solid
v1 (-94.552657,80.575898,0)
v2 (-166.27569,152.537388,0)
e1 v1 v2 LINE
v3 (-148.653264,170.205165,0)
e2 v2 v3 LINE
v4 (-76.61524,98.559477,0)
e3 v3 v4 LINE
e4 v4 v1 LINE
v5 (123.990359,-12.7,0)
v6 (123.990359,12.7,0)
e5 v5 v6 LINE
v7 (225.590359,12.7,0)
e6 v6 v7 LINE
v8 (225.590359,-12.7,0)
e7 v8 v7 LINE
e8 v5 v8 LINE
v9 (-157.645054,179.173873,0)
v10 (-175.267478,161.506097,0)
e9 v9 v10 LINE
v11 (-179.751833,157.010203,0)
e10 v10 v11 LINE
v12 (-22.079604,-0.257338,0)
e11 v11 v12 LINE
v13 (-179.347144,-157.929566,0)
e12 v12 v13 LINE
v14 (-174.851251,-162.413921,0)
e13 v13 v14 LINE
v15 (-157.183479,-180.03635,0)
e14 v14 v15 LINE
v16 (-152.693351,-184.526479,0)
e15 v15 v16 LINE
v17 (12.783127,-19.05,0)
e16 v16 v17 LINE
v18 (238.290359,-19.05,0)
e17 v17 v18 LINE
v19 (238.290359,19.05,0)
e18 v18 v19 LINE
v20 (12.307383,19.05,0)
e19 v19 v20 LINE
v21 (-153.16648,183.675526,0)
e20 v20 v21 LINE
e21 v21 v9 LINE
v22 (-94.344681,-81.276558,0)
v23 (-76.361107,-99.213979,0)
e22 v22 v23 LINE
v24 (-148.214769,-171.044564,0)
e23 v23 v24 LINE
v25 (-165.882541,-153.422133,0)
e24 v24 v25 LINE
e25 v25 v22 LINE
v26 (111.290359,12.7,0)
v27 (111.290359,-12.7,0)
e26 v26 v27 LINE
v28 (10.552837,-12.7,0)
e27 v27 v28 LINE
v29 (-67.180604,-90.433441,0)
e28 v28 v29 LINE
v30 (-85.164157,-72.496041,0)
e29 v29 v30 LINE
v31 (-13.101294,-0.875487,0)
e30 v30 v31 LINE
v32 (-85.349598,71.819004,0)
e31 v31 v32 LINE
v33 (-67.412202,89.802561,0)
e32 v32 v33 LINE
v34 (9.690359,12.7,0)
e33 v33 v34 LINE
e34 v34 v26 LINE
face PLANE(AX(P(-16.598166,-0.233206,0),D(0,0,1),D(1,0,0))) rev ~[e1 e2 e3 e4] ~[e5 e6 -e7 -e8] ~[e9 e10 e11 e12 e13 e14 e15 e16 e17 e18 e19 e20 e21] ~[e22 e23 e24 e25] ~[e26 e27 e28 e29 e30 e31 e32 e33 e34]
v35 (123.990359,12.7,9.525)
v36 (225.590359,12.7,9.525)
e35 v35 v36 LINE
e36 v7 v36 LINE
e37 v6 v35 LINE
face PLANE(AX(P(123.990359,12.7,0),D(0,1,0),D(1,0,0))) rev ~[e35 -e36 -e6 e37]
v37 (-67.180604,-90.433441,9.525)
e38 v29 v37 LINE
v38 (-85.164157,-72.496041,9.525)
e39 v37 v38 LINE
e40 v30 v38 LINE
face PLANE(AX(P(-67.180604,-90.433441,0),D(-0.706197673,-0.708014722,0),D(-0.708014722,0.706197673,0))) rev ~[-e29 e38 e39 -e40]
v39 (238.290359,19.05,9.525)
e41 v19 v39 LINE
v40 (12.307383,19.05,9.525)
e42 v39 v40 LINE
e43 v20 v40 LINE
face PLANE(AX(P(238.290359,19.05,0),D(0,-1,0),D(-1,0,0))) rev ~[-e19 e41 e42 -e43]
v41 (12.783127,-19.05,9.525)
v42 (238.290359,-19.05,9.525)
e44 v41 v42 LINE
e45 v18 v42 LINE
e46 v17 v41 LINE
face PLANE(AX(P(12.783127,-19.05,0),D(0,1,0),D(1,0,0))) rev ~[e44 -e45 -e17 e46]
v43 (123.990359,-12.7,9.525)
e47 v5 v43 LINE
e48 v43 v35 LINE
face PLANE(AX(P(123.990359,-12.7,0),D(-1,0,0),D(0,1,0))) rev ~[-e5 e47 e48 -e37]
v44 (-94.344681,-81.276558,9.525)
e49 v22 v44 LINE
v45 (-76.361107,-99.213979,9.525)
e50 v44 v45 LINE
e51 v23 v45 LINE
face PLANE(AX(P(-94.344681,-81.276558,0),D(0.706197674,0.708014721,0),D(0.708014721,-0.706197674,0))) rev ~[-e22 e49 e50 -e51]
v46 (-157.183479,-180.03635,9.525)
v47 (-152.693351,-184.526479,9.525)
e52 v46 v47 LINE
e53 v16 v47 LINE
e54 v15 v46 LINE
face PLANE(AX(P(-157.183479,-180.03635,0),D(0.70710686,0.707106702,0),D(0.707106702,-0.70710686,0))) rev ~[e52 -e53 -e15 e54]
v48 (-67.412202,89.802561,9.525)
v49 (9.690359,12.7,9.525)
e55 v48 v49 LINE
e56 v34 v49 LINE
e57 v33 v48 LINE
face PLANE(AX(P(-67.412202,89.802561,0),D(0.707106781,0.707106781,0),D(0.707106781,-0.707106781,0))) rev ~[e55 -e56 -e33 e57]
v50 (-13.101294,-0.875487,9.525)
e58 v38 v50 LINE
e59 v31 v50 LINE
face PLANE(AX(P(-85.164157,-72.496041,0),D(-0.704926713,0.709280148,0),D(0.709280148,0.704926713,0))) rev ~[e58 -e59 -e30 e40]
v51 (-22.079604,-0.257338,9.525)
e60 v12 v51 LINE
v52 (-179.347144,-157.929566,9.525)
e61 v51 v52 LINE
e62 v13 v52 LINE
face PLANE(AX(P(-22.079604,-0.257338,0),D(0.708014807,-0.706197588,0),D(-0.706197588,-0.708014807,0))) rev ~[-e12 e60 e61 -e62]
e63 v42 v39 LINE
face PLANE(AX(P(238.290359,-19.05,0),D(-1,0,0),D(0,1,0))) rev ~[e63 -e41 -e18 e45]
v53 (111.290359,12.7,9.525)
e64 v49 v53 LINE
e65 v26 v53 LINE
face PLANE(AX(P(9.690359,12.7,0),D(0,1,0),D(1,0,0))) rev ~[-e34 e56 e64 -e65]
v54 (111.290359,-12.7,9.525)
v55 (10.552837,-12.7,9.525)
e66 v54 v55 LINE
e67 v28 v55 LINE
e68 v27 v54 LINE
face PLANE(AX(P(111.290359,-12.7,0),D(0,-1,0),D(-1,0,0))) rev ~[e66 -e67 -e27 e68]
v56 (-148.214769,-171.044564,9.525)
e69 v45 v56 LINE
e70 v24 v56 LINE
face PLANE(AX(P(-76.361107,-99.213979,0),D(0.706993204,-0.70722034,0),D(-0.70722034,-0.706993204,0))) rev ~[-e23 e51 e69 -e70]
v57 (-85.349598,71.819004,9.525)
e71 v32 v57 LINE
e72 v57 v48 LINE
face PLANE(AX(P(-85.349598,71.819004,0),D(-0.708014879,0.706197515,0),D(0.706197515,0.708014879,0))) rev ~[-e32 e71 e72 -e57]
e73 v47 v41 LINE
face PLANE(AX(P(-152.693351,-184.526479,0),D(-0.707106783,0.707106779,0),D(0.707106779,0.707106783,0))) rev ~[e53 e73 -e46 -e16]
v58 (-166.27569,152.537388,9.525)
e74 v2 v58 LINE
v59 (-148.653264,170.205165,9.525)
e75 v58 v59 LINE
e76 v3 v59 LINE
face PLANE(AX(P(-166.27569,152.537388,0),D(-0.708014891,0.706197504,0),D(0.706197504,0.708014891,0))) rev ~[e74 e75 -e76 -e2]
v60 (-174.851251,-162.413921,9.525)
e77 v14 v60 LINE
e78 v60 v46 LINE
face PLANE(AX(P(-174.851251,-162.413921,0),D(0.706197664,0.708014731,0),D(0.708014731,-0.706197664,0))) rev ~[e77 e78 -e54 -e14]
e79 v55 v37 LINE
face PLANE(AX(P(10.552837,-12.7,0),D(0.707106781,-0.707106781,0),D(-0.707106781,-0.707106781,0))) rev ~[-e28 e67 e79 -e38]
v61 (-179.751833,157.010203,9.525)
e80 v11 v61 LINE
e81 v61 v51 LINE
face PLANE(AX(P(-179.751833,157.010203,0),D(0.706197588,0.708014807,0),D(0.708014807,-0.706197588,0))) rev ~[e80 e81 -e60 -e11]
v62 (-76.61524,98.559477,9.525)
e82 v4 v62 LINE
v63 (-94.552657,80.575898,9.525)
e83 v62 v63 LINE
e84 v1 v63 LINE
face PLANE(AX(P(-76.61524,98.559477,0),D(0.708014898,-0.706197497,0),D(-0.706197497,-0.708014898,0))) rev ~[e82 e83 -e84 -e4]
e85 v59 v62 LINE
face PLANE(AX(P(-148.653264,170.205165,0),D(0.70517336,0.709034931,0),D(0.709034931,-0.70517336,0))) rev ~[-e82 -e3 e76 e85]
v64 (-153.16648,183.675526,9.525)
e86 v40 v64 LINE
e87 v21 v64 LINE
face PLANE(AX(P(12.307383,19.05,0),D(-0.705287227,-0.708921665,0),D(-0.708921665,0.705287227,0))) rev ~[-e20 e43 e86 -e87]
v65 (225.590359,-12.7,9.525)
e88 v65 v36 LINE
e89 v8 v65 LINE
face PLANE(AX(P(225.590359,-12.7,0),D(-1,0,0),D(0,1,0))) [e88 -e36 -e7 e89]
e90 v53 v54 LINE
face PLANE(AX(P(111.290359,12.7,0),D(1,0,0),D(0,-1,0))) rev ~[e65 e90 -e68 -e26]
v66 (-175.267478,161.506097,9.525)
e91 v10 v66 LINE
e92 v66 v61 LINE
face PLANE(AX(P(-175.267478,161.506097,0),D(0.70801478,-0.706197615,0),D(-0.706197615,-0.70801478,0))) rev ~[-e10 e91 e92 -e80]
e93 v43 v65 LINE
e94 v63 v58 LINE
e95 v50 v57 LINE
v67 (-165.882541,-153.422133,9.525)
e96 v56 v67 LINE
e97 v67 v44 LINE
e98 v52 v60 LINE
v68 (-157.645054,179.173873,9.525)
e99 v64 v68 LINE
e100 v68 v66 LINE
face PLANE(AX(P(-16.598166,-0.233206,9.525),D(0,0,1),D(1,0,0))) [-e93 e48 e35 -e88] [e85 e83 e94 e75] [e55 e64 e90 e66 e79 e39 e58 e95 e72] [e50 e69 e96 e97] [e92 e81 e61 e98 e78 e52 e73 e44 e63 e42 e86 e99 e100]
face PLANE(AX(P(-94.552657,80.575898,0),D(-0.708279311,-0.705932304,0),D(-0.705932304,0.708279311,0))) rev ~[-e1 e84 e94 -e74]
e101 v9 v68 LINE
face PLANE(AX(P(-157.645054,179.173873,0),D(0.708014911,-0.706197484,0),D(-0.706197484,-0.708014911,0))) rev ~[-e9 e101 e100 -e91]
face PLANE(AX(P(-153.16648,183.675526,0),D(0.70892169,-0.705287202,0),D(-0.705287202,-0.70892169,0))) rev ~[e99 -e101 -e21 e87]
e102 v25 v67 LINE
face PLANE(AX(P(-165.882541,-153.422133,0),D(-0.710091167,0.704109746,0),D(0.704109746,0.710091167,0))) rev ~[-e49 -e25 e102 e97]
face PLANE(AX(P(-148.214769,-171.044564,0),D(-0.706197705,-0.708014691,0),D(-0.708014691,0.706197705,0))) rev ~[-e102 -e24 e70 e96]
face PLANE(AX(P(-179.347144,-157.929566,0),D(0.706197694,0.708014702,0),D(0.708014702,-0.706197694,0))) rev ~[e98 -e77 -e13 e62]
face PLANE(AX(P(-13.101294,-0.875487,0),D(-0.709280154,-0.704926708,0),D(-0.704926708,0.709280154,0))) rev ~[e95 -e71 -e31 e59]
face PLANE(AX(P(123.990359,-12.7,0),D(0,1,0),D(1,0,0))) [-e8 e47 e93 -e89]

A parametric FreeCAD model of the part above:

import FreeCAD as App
import Part
import Sketcher

V = App.Vector
Q = App.Units.Quantity


def add_polygon(sketch, points):
    """Adds a closed chain of lines whose ends are joined by coincident constraints."""
    first, n = sketch.GeometryCount, len(points)
    for a, b in zip(points, points[1:] + points[:1]):
        sketch.addGeometry(Part.LineSegment(App.Vector(*a, 0), App.Vector(*b, 0)), False)
    for i in range(n):
        sketch.addConstraint(Sketcher.Constraint("Coincident", first + i, 2, first + (i + 1) % n, 1))

doc = App.newDocument("Part")
body = doc.addObject("PartDesign::Body", "Body")

# Sketch on XY plane
sketch1 = body.newObject("Sketcher::SketchObject", "Sketch")
sketch1.AttachmentSupport = (doc.getObject("XY_Plane"), [""])
sketch1.MapMode = "FlatFace"
add_polygon(sketch1, [(-157.645054, 179.173873), (-175.267478, 161.506097), (-179.751833, 157.010203), (-22.079604, -0.257338), (-179.347144, -157.929566), (-174.851251, -162.413921), (-157.183479, -180.03635), (-152.693351, -184.526479), (12.783127, -19.05), (238.290359, -19.05), (238.290359, 19.05), (12.307383, 19.05), (-153.16648, 183.675526)])  # lines 0-12
add_polygon(sketch1, [(-148.214769, -171.044564), (-165.882541, -153.422133), (-94.344681, -81.276558), (-76.361107, -99.213979)])  # lines 13-16
add_polygon(sketch1, [(10.552837, -12.7), (-67.180604, -90.433441), (-85.164157, -72.496041), (-13.101294, -0.875487), (-85.349598, 71.819004), (-67.412202, 89.802561), (9.690359, 12.7), (111.290359, 12.7), (111.290359, -12.7)])  # lines 17-25
add_polygon(sketch1, [(-148.653264, 170.205165), (-76.61524, 98.559477), (-94.552657, 80.575898), (-166.27569, 152.537388)])  # lines 26-29
add_polygon(sketch1, [(225.590359, -12.7), (123.990359, -12.7), (123.990359, 12.7), (225.590359, 12.7)])  # lines 30-33
sketch1.addConstraint([
    Sketcher.Constraint("Horizontal", 8),
    Sketcher.Constraint("Vertical", 9),
    Sketcher.Constraint("Horizontal", 10),
    Sketcher.Constraint("Horizontal", 23),
    Sketcher.Constraint("Vertical", 24),
    Sketcher.Constraint("Horizontal", 25),
    Sketcher.Constraint("Horizontal", 30),
    Sketcher.Constraint("Vertical", 31),
    Sketcher.Constraint("Horizontal", 32),
    Sketcher.Constraint("Vertical", 33),
    Sketcher.Constraint("DistanceX", 23, 1, 23, 2, Q("4 in")),
    Sketcher.Constraint("DistanceX", 30, 2, 30, 1, Q("4 in")),
    Sketcher.Constraint("DistanceY", 24, 2, 24, 1, Q("1 in")),
    Sketcher.Constraint("DistanceY", 31, 1, 31, 2, Q("1 in")),
    Sketcher.Constraint("Distance", 15, Q("1 in")),
    Sketcher.Constraint("Distance", 19, Q("4 in")),
    Sketcher.Constraint("Distance", 27, Q("1 in")),
    Sketcher.Constraint("DistanceY", 9, 1, 9, 2, Q("1.5 in")),
    Sketcher.Constraint("DistanceX", 23, 2, 9, 2, Q("5 in")),
    Sketcher.Constraint("DistanceY", 30, 2, 23, 2, Q("1 in")),
    Sketcher.Constraint("DistanceY", -1, 1, 22, 2, Q("0.5 in")),
    Sketcher.Constraint("DistanceX", 24, 2, 30, 2, Q("0.5 in")),
    Sketcher.Constraint("Distance", 1, Q("0.25 in")),
    Sketcher.Constraint("Distance", 4, Q("0.25 in")),
    Sketcher.Constraint("Distance", 6, Q("0.25 in")),
    Sketcher.Constraint("Distance", 12, Q("0.25 in")),
    Sketcher.Constraint("DistanceY", 7, 2, -1, 1, Q("0.75 in")),
    Sketcher.Constraint("DistanceX", 8, 1, 8, 2, Q("225.507232 mm")),
    Sketcher.Constraint("DistanceX", 25, 2, 25, 1, Q("100.737522 mm")),
    Sketcher.Constraint("DistanceX", 20, 2, -1, 1, Q("85.349598 mm")),
    Sketcher.Constraint("DistanceX", 21, 2, -1, 1, Q("67.412202 mm")),
    Sketcher.Constraint("DistanceX", 0, 2, 5, 2, Q("18.083999 mm")),
    Sketcher.Constraint("DistanceX", 4, 2, 6, 2, Q("22.1579 mm")),
    Sketcher.Constraint("DistanceX", 0, 2, 11, 2, Q("22.100998 mm")),
    Sketcher.Constraint("DistanceX", 5, 2, 14, 2, Q("62.838798 mm")),
    Sketcher.Constraint("DistanceY", 6, 2, 15, 2, Q("85.3125 mm")),
    Sketcher.Constraint("DistanceY", 16, 2, 3, 2, Q("13.114998 mm")),
    Sketcher.Constraint("DistanceX", 17, 2, 2, 2, Q("45.101 mm")),
    Sketcher.Constraint("DistanceY", 17, 2, 18, 2, Q("17.9374 mm")),
    Sketcher.Constraint("DistanceY", 20, 2, 1, 2, Q("85.191199 mm")),
    Sketcher.Constraint("DistanceY", 2, 2, 21, 2, Q("90.059899 mm")),
    Sketcher.Constraint("DistanceY", 27, 2, 0, 2, Q("80.930199 mm")),
    Sketcher.Constraint("Distance", 0, Q("24.95396 mm")),
    Sketcher.Constraint("Distance", 2, Q("222.696231 mm")),
    Sketcher.Constraint("Distance", 3, Q("222.696229 mm")),
    Sketcher.Constraint("Distance", 5, Q("24.953961 mm")),
    Sketcher.Constraint("Distance", 7, Q("234.01908 mm")),
    Sketcher.Constraint("Distance", 14, Q("101.60044 mm")),
    Sketcher.Constraint("Distance", 18, Q("25.39997 mm")),
    Sketcher.Constraint("Distance", 20, Q("102.490519 mm")),
    Sketcher.Constraint("Distance", 21, Q("25.39997 mm")),
    Sketcher.Constraint("Distance", 28, Q("101.60044 mm")),
    Sketcher.Constraint("DistanceX", 10, 2, 10, 1, Q("225.982976 mm")),
    Sketcher.Constraint("DistanceX", 0, 2, -1, 1, Q("175.267478 mm")),
    Sketcher.Constraint("DistanceX", 4, 2, -1, 1, Q("174.851251 mm")),
    Sketcher.Constraint("DistanceY", 4, 2, -1, 1, Q("162.413921 mm")),
    Sketcher.Constraint("DistanceX", 13, 2, -1, 1, Q("165.882541 mm")),
    Sketcher.Constraint("DistanceX", 16, 2, -1, 1, Q("148.214769 mm")),
    Sketcher.Constraint("DistanceY", 17, 2, -1, 1, Q("90.433441 mm")),
    Sketcher.Constraint("DistanceY", -1, 1, 21, 2, Q("89.802561 mm")),
    Sketcher.Constraint("DistanceX", 26, 2, -1, 1, Q("76.61524 mm")),
    Sketcher.Constraint("DistanceX", 28, 2, -1, 1, Q("166.27569 mm")),
    Sketcher.Constraint("DistanceY", -1, 1, 28, 2, Q("152.537388 mm")),
    Sketcher.Constraint("DistanceX", 3, 2, 2, 2, Q("157.26754 mm")),
    Sketcher.Constraint("DistanceX", 1, 2, 12, 2, Q("22.106779 mm")),
    Sketcher.Constraint("DistanceY", 14, 2, 2, 2, Q("81.01922 mm")),
    Sketcher.Constraint("DistanceX", 12, 2, 29, 2, Q("8.99179 mm")),
    Sketcher.Constraint("DistanceY", 29, 2, 11, 2, Q("13.470361 mm")),
])
pad1 = body.newObject("PartDesign::Pad", "Pad")
pad1.Profile = sketch1
pad1.Length = Q("0.375 in")

doc.recompute()
